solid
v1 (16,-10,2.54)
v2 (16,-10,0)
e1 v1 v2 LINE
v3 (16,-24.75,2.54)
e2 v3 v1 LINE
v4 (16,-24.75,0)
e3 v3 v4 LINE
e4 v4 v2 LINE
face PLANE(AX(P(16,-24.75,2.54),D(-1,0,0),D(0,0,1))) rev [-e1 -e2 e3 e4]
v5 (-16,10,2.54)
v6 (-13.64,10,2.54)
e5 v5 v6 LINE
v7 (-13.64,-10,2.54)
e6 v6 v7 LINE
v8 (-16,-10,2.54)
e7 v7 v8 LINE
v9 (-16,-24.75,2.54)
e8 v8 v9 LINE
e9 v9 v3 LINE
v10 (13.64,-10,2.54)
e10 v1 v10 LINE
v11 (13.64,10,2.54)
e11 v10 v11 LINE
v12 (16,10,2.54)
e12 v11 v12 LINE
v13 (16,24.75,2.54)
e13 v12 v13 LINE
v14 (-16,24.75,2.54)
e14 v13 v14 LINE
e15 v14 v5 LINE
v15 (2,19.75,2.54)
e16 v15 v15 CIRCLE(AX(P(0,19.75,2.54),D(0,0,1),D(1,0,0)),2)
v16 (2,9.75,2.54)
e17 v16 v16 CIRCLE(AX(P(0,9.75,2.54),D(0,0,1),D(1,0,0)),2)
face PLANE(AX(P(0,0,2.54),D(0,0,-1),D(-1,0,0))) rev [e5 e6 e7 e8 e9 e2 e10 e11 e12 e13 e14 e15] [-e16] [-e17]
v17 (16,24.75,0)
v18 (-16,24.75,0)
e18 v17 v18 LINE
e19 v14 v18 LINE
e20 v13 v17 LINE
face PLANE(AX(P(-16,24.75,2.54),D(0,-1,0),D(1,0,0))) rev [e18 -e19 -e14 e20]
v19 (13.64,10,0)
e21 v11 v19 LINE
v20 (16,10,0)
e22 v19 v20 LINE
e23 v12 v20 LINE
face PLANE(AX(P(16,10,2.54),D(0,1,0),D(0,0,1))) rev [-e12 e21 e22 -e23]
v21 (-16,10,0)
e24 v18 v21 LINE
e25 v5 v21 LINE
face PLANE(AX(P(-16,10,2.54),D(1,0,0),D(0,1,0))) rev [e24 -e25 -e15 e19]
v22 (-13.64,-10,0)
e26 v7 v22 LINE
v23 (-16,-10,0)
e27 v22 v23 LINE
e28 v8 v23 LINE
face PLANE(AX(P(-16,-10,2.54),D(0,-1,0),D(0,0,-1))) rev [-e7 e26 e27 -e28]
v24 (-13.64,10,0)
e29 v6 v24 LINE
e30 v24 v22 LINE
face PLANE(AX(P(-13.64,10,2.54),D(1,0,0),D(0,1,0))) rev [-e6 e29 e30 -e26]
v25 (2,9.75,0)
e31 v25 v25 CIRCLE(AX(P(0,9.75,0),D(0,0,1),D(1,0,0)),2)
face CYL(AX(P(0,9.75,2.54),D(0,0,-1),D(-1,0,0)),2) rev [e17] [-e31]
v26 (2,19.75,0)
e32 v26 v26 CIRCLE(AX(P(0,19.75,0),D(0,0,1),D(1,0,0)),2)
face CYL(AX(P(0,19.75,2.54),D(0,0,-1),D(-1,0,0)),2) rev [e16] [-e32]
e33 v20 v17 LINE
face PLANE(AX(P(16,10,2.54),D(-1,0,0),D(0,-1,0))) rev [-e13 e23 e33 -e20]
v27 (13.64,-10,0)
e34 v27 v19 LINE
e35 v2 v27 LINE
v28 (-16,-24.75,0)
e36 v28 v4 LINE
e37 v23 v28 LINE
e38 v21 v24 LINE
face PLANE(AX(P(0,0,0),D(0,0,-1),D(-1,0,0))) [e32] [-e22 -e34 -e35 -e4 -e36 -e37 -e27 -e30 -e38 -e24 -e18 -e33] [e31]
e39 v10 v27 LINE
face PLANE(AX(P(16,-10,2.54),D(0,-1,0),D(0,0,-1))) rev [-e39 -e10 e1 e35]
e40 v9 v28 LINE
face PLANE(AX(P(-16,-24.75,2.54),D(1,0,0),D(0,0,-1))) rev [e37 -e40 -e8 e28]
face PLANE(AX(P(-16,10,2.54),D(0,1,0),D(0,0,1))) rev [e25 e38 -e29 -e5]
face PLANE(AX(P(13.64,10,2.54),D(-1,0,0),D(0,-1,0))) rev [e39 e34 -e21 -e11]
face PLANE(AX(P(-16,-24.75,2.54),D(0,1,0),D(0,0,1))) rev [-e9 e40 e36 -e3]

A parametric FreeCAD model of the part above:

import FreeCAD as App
import Part
import Sketcher

V = App.Vector
Q = App.Units.Quantity


def add_polygon(sketch, points):
    """Adds a closed chain of lines whose ends are joined by coincident constraints."""
    first, n = sketch.GeometryCount, len(points)
    for a, b in zip(points, points[1:] + points[:1]):
        sketch.addGeometry(Part.LineSegment(App.Vector(*a, 0), App.Vector(*b, 0)), False)
    for i in range(n):
        sketch.addConstraint(Sketcher.Constraint("Coincident", first + i, 2, first + (i + 1) % n, 1))

doc = App.newDocument("Part")
body = doc.addObject("PartDesign::Body", "Body")

# Sketch on XY plane
sketch1 = doc.addObject("Sketcher::SketchObject", "Sketch")
body.addObject(sketch1)
sketch1.AttachmentSupport = (doc.XY_Plane, [""])
sketch1.MapMode = "FlatFace"
add_polygon(sketch1, [(-16, -24.8), (16, -24.8), (16, -10), (13.6, -10), (13.6, 10), (16, 10), (16, 24.8), (-16, 24.8), (-16, 10), (-13.6, 10), (-13.6, -10), (-16, -10)])  # lines 0-11
sketch1.addGeometry(Part.Circle(V(0, 9.8, 0), V(0, 0, 1), 2), False)  # 12
sketch1.addGeometry(Part.Circle(V(0, 19.8, 0), V(0, 0, 1), 2), False)  # 13
sketch1.addConstraint([
    Sketcher.Constraint("Horizontal", 0),
    Sketcher.Constraint("Vertical", 1),
    Sketcher.Constraint("Horizontal", 2),
    Sketcher.Constraint("Vertical", 3),
    Sketcher.Constraint("Horizontal", 4),
    Sketcher.Constraint("Vertical", 5),
    Sketcher.Constraint("Horizontal", 6),
    Sketcher.Constraint("Vertical", 7),
    Sketcher.Constraint("Horizontal", 8),
    Sketcher.Constraint("Vertical", 9),
    Sketcher.Constraint("Horizontal", 10),
    Sketcher.Constraint("Vertical", 11),
    Sketcher.Constraint("Equal", 12, 13),
    Sketcher.Constraint("Symmetric", 0, 2, 6, 2, -1, 1),
    Sketcher.Constraint("Symmetric", 2, 2, 8, 2, -1, 1),
    Sketcher.Constraint("Symmetric", 4, 2, 10, 2, -1, 1),
    Sketcher.Constraint("Symmetric", 4, 2, 7, 2, -2),
    Sketcher.Constraint("PointOnObject", 12, 3, -2),
    Sketcher.Constraint("PointOnObject", 13, 3, -2),
    Sketcher.Constraint("Diameter", 12, Q("4 mm")),
    Sketcher.Constraint("DistanceX", 0, 1, 0, 2, Q("32 mm")),
    Sketcher.Constraint("DistanceY", 3, 1, 3, 2, Q("20 mm")),
    Sketcher.Constraint("DistanceY", 12, 3, 13, 3, Q("10 mm")),
    Sketcher.Constraint("DistanceY", 13, 3, 5, 2, Q("5 mm")),
    Sketcher.Constraint("DistanceX", 2, 2, 2, 1, Q("2.36 mm")),
    Sketcher.Constraint("DistanceY", 1, 1, 1, 2, Q("14.75 mm")),
])
pad1 = doc.addObject("PartDesign::Pad", "Pad")
body.addObject(pad1)
pad1.Profile = sketch1
pad1.Length = 2.54

doc.recompute()
